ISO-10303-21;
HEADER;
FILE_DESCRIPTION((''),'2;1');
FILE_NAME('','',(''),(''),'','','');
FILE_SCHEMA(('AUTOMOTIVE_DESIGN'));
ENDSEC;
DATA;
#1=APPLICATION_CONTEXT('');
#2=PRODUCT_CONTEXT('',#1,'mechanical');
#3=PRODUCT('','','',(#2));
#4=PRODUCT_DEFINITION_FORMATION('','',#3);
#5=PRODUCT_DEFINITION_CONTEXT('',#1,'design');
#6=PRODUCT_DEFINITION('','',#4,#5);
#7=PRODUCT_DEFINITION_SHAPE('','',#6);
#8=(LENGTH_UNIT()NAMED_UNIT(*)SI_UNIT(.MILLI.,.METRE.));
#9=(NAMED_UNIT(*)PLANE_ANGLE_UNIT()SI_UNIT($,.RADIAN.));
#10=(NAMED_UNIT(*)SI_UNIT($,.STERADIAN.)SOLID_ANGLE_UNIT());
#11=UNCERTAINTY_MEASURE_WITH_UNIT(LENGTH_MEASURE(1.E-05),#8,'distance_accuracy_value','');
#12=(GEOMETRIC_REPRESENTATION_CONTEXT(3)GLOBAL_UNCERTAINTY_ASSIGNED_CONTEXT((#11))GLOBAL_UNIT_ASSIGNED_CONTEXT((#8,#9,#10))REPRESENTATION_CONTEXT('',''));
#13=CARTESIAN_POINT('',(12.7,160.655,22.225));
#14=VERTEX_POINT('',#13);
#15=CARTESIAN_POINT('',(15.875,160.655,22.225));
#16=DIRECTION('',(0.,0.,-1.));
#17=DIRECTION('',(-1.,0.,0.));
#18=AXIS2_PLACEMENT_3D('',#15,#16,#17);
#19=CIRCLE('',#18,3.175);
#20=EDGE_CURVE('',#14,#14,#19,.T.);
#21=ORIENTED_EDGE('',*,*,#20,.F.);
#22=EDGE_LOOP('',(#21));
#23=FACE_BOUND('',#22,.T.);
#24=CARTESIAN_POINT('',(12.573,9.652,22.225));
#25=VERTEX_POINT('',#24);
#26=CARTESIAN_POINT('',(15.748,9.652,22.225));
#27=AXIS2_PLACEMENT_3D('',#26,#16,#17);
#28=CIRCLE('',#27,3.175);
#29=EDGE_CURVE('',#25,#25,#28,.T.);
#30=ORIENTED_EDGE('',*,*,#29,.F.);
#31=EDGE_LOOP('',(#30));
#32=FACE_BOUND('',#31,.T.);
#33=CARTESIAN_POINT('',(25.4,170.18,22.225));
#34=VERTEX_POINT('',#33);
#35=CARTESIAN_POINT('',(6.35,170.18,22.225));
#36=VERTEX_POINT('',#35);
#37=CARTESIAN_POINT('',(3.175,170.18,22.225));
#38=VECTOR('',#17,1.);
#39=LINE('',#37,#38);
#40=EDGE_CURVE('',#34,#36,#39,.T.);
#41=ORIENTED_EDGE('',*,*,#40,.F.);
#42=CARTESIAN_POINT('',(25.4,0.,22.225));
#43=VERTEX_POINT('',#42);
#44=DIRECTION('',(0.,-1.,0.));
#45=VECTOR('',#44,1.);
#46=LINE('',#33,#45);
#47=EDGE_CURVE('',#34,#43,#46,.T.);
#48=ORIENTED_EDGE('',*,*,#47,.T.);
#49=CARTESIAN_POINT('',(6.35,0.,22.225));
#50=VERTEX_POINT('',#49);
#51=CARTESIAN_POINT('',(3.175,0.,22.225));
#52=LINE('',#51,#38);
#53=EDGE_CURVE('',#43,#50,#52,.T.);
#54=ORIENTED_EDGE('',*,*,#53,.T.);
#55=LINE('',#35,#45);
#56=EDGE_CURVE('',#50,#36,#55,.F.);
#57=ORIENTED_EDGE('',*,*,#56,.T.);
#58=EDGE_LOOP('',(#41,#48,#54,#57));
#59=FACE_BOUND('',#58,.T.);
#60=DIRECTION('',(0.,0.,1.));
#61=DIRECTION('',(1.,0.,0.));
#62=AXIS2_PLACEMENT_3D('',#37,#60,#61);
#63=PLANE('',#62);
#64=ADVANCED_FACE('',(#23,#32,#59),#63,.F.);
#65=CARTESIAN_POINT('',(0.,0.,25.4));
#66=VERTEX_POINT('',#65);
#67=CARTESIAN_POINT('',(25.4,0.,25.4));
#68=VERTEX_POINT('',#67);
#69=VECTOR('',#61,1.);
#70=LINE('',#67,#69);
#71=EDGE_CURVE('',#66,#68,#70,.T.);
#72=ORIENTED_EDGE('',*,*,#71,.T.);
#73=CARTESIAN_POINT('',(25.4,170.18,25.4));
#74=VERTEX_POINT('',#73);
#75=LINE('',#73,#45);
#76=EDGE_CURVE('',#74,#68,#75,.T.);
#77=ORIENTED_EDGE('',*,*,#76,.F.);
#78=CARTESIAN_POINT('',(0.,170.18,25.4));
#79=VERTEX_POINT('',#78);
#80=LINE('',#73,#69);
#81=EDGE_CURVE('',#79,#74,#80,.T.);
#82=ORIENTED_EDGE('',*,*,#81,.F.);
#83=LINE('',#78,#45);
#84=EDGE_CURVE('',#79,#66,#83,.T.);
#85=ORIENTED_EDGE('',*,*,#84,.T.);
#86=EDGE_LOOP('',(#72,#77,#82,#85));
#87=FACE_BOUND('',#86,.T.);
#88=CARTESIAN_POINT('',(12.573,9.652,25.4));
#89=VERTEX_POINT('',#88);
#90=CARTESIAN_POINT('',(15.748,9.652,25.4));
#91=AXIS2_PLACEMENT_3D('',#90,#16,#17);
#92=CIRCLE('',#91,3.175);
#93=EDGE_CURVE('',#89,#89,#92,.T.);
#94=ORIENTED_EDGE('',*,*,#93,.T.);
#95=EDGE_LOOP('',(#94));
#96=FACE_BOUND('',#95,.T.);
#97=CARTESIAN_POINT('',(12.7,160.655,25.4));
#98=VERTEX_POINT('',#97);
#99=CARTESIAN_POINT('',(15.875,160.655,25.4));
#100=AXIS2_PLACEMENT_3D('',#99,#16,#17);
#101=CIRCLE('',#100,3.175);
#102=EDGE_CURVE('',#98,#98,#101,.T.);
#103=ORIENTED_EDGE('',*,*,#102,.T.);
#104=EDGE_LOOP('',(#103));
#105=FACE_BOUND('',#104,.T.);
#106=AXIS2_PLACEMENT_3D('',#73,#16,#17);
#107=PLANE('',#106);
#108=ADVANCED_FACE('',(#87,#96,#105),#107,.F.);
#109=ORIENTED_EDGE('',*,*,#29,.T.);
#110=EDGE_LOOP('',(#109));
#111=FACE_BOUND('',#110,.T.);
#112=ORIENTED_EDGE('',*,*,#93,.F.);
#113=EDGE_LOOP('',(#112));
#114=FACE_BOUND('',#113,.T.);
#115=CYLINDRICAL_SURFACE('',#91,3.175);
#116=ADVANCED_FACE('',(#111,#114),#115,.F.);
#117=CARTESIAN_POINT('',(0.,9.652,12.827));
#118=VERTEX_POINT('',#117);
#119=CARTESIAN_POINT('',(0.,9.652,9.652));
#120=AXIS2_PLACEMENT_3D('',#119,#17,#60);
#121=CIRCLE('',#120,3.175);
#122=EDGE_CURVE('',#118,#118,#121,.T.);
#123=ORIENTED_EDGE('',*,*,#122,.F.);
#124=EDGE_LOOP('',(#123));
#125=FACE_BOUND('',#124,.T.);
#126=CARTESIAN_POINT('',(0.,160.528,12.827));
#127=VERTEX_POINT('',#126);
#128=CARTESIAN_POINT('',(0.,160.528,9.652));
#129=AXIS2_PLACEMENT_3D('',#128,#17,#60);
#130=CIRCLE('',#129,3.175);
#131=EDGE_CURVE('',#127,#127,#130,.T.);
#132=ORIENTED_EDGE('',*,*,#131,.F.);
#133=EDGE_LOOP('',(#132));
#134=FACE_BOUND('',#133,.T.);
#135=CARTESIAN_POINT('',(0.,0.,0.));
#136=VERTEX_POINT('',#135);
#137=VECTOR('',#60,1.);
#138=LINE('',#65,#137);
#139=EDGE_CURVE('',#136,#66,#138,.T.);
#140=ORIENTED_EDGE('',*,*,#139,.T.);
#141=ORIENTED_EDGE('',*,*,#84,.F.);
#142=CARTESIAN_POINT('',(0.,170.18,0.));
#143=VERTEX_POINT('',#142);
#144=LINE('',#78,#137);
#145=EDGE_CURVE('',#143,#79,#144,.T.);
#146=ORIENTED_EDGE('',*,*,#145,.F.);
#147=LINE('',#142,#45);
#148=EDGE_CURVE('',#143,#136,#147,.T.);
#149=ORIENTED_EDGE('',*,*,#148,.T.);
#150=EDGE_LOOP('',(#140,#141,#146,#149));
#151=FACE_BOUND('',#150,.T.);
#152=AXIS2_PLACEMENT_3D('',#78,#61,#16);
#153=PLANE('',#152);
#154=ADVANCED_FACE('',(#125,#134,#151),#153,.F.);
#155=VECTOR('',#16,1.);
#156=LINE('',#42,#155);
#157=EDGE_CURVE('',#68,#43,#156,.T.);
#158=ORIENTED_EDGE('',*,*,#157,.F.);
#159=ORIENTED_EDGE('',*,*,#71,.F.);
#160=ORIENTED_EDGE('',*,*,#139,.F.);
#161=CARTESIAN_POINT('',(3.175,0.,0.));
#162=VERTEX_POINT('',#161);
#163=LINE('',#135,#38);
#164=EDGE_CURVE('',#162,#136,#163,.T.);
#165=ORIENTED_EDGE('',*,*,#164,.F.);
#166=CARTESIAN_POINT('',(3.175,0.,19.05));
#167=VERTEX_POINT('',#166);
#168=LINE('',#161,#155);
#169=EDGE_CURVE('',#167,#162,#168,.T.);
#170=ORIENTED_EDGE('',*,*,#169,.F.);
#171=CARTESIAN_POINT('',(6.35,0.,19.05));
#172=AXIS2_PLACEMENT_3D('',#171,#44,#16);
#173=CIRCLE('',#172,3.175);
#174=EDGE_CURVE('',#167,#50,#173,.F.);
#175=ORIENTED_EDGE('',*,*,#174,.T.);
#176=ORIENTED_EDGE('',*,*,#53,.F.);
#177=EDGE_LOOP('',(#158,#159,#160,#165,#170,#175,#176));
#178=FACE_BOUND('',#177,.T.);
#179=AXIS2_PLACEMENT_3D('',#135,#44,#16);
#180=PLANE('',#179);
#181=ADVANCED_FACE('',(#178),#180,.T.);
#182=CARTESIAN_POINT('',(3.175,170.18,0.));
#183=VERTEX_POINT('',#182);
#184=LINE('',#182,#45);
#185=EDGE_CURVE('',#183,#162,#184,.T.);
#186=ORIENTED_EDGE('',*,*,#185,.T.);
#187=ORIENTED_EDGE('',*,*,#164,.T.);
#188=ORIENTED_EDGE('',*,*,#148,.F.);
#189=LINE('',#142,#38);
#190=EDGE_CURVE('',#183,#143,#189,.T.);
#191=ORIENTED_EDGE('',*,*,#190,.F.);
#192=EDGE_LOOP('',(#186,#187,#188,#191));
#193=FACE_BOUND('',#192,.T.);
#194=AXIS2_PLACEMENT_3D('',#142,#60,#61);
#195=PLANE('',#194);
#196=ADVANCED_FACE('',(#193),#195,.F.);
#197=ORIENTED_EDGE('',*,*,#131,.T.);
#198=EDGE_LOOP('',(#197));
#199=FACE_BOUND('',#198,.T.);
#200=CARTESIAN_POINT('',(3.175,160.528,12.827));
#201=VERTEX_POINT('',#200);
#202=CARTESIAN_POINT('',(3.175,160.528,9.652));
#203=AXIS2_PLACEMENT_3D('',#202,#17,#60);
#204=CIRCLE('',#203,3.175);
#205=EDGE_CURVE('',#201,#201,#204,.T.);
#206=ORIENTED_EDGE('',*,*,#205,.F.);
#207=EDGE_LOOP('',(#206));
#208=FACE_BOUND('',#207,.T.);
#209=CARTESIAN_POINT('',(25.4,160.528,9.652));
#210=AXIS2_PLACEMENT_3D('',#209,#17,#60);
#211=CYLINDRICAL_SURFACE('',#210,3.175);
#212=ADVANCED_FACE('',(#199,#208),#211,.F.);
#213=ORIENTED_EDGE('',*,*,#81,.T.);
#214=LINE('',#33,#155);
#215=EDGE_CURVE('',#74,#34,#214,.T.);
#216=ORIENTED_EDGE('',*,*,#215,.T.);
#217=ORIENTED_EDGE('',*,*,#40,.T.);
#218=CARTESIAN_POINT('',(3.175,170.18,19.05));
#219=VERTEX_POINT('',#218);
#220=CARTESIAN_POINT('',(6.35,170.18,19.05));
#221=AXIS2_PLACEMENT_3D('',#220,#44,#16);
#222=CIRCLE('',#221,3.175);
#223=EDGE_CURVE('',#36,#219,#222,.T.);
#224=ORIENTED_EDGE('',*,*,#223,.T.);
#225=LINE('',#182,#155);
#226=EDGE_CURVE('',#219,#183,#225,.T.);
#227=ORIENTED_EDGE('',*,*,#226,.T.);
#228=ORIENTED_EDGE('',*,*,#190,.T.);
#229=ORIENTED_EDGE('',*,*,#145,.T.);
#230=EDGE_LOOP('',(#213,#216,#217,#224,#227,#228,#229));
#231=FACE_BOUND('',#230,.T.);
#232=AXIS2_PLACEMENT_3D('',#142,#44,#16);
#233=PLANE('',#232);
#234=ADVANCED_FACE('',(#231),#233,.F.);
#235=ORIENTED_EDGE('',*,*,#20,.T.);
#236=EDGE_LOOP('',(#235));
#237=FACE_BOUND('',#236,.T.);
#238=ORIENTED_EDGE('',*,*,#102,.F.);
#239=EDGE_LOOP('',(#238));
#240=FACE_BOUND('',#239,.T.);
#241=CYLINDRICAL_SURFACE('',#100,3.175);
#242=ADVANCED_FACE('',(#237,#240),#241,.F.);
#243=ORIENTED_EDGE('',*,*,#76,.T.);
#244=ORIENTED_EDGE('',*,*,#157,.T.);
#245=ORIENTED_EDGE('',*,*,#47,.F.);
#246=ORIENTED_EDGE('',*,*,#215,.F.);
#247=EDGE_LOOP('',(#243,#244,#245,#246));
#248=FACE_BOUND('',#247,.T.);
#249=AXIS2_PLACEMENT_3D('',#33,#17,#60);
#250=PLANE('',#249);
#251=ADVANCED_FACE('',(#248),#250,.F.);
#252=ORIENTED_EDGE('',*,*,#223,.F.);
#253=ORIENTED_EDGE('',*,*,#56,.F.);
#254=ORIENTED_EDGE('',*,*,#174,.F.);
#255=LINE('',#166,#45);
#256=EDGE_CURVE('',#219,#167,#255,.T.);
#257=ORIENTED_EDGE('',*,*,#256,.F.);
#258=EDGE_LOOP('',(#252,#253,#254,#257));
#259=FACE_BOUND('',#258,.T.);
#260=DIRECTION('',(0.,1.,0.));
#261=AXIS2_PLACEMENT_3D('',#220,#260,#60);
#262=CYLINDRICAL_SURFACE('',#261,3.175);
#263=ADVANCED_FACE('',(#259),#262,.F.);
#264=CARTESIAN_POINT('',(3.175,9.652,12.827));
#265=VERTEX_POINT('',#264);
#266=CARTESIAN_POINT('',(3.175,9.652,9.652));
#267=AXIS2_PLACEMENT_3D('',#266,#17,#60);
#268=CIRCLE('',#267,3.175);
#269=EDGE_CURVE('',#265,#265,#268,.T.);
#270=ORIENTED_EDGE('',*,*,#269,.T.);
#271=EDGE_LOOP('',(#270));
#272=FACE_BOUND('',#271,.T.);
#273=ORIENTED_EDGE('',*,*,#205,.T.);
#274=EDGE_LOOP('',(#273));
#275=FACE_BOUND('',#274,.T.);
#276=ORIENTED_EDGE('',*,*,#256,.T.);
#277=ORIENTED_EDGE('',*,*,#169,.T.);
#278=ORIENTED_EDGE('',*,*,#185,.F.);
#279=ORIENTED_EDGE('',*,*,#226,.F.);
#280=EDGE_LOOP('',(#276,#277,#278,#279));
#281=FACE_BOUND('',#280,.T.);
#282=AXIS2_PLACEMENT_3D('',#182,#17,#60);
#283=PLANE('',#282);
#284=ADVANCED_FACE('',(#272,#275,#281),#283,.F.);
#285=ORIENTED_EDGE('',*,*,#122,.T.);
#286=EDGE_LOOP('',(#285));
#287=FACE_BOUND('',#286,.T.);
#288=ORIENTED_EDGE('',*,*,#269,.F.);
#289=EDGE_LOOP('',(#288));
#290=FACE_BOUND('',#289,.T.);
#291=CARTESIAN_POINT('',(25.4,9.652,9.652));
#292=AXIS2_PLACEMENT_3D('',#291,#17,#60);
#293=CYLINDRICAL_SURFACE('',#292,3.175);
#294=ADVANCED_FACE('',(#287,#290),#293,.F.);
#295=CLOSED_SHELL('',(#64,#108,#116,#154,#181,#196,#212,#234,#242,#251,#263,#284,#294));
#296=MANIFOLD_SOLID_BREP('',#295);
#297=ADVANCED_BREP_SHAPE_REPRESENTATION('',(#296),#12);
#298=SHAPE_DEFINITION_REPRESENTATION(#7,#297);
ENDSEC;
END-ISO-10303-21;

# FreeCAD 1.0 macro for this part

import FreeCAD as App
import Part
import Sketcher
Q = App.Units.Quantity


def edges_at(feature, points):
    """Names of the edges that pass closest to the given points."""
    edges = feature.Shape.Edges
    near = lambda p: min(range(len(edges)), key=lambda i: edges[i].distToShape(Part.Vertex(*p))[0])
    return sorted({f"Edge{near(p) + 1}" for p in points})

doc = App.newDocument("Part")
body = doc.addObject("PartDesign::Body", "Body")

# Sketch on XZ plane
sketch1 = doc.addObject("Sketcher::SketchObject", "Sketch")
body.addObject(sketch1)
sketch1.AttachmentSupport = (doc.XZ_Plane, [""])
sketch1.MapMode = "FlatFace"
sketch1.addGeometry([
    Part.LineSegment(App.Vector(3.2, 0, 0), App.Vector(0, 0, 0)),  # 0
    Part.LineSegment(App.Vector(0, 0, 0), App.Vector(0, 25.4, 0)),  # 1
    Part.LineSegment(App.Vector(0, 25.4, 0), App.Vector(25.4, 25.4, 0)),  # 2
    Part.LineSegment(App.Vector(25.4, 25.4, 0), App.Vector(25.4, 22.2, 0)),  # 3
    Part.LineSegment(App.Vector(25.4, 22.2, 0), App.Vector(3.2, 22.2, 0)),  # 4
    Part.LineSegment(App.Vector(3.2, 22.2, 0), App.Vector(3.2, 0, 0)),  # 5
], False)
sketch1.addConstraint([
    Sketcher.Constraint("Coincident", 0, 2, 1, 1),
    Sketcher.Constraint("Coincident", 1, 2, 2, 1),
    Sketcher.Constraint("Coincident", 2, 2, 3, 1),
    Sketcher.Constraint("Coincident", 3, 2, 4, 1),
    Sketcher.Constraint("Coincident", 4, 2, 5, 1),
    Sketcher.Constraint("Coincident", 5, 2, 0, 1),
    Sketcher.Constraint("Horizontal", 0),
    Sketcher.Constraint("Vertical", 1),
    Sketcher.Constraint("Horizontal", 2),
    Sketcher.Constraint("Vertical", 3),
    Sketcher.Constraint("Horizontal", 4),
    Sketcher.Constraint("Vertical", 5),
    Sketcher.Constraint("Coincident", 0, 2, -1, 1),
    Sketcher.Constraint("Equal", 2, 1),
    Sketcher.Constraint("Equal", 0, 3),
    Sketcher.Constraint("DistanceX", 2, 1, 2, 2, Q("1 in")),
    Sketcher.Constraint("DistanceX", 0, 2, 0, 1, Q("0.125 in")),
])
pad1 = doc.addObject("PartDesign::Pad", "Pad")
body.addObject(pad1)
pad1.Profile = sketch1
pad1.Length = Q("6.7 in")
pad1.Reversed = True
doc.recompute()

fillet = doc.addObject("PartDesign::Fillet", "Fillet")
body.addObject(fillet)
fillet.Base = (pad1, edges_at(pad1, [(3.175, 85.09, 22.225)]))
fillet.Radius = Q("0.125 in")

# Sketch on YZ plane
sketch2 = doc.addObject("Sketcher::SketchObject", "Sketch001")
body.addObject(sketch2)
sketch2.AttachmentSupport = (doc.YZ_Plane, [""])
sketch2.MapMode = "FlatFace"
sketch2.addGeometry(Part.Circle(App.Vector(160.5, 9.7, 0), App.Vector(0, 0, 1), 3.2), False)
sketch2.addConstraint([
    Sketcher.Constraint("Diameter", 0, Q("0.25 in")),
    Sketcher.Constraint("DistanceX", -1, 1, 0, 3, Q("6.32 in")),
    Sketcher.Constraint("DistanceY", -1, 1, 0, 3, Q("0.38 in")),
])
pocket1 = doc.addObject("PartDesign::Pocket", "Pocket")
body.addObject(pocket1)
pocket1.Profile = sketch2
pocket1.Type = "ThroughAll"
pocket1.Reversed = True

# Sketch on YZ plane
sketch3 = doc.addObject("Sketcher::SketchObject", "Sketch002")
body.addObject(sketch3)
sketch3.AttachmentSupport = (doc.YZ_Plane, [""])
sketch3.MapMode = "FlatFace"
sketch3.addGeometry(Part.Circle(App.Vector(9.7, 9.7, 0), App.Vector(0, 0, 1), 3.2), False)
sketch3.addConstraint([
    Sketcher.Constraint("Diameter", 0, Q("0.25 in")),
    Sketcher.Constraint("DistanceX", -1, 1, 0, 3, Q("0.38 in")),
    Sketcher.Constraint("DistanceY", -1, 1, 0, 3, Q("0.38 in")),
])
pocket2 = doc.addObject("PartDesign::Pocket", "Pocket001")
body.addObject(pocket2)
pocket2.Profile = sketch3
pocket2.Type = "ThroughAll"
pocket2.Reversed = True

# Sketch on XY plane
sketch4 = doc.addObject("Sketcher::SketchObject", "Sketch003")
body.addObject(sketch4)
sketch4.AttachmentSupport = (doc.XY_Plane, [""])
sketch4.MapMode = "FlatFace"
sketch4.AttachmentOffset = App.Placement(App.Vector(0, 0, 0.875 * 25.4), App.Rotation())
sketch4.addGeometry(Part.Circle(App.Vector(15.7, 9.7, 0), App.Vector(0, 0, 1), 3.2), False)
sketch4.addConstraint([
    Sketcher.Constraint("Diameter", 0, Q("0.25 in")),
    Sketcher.Constraint("DistanceX", -1, 1, 0, 3, Q("0.62 in")),
    Sketcher.Constraint("DistanceY", -1, 1, 0, 3, Q("0.38 in")),
])
pocket3 = doc.addObject("PartDesign::Pocket", "Pocket002")
body.addObject(pocket3)
pocket3.Profile = sketch4
pocket3.Type = "ThroughAll"
pocket3.Reversed = True

# Sketch on XY plane
sketch5 = doc.addObject("Sketcher::SketchObject", "Sketch004")
body.addObject(sketch5)
sketch5.AttachmentSupport = (doc.XY_Plane, [""])
sketch5.MapMode = "FlatFace"
sketch5.AttachmentOffset = App.Placement(App.Vector(0, 0, 0.875 * 25.4), App.Rotation())
sketch5.addGeometry(Part.Circle(App.Vector(15.9, 160.7, 0), App.Vector(0, 0, 1), 3.2), False)
sketch5.addConstraint([
    Sketcher.Constraint("Diameter", 0, Q("0.25 in")),
    Sketcher.Constraint("DistanceX", -1, 1, 0, 3, Q("0.625 in")),
    Sketcher.Constraint("DistanceY", -1, 1, 0, 3, Q("6.325 in")),
])
pocket4 = doc.addObject("PartDesign::Pocket", "Pocket003")
body.addObject(pocket4)
pocket4.Profile = sketch5
pocket4.Type = "ThroughAll"
pocket4.Reversed = True

doc.recompute()
